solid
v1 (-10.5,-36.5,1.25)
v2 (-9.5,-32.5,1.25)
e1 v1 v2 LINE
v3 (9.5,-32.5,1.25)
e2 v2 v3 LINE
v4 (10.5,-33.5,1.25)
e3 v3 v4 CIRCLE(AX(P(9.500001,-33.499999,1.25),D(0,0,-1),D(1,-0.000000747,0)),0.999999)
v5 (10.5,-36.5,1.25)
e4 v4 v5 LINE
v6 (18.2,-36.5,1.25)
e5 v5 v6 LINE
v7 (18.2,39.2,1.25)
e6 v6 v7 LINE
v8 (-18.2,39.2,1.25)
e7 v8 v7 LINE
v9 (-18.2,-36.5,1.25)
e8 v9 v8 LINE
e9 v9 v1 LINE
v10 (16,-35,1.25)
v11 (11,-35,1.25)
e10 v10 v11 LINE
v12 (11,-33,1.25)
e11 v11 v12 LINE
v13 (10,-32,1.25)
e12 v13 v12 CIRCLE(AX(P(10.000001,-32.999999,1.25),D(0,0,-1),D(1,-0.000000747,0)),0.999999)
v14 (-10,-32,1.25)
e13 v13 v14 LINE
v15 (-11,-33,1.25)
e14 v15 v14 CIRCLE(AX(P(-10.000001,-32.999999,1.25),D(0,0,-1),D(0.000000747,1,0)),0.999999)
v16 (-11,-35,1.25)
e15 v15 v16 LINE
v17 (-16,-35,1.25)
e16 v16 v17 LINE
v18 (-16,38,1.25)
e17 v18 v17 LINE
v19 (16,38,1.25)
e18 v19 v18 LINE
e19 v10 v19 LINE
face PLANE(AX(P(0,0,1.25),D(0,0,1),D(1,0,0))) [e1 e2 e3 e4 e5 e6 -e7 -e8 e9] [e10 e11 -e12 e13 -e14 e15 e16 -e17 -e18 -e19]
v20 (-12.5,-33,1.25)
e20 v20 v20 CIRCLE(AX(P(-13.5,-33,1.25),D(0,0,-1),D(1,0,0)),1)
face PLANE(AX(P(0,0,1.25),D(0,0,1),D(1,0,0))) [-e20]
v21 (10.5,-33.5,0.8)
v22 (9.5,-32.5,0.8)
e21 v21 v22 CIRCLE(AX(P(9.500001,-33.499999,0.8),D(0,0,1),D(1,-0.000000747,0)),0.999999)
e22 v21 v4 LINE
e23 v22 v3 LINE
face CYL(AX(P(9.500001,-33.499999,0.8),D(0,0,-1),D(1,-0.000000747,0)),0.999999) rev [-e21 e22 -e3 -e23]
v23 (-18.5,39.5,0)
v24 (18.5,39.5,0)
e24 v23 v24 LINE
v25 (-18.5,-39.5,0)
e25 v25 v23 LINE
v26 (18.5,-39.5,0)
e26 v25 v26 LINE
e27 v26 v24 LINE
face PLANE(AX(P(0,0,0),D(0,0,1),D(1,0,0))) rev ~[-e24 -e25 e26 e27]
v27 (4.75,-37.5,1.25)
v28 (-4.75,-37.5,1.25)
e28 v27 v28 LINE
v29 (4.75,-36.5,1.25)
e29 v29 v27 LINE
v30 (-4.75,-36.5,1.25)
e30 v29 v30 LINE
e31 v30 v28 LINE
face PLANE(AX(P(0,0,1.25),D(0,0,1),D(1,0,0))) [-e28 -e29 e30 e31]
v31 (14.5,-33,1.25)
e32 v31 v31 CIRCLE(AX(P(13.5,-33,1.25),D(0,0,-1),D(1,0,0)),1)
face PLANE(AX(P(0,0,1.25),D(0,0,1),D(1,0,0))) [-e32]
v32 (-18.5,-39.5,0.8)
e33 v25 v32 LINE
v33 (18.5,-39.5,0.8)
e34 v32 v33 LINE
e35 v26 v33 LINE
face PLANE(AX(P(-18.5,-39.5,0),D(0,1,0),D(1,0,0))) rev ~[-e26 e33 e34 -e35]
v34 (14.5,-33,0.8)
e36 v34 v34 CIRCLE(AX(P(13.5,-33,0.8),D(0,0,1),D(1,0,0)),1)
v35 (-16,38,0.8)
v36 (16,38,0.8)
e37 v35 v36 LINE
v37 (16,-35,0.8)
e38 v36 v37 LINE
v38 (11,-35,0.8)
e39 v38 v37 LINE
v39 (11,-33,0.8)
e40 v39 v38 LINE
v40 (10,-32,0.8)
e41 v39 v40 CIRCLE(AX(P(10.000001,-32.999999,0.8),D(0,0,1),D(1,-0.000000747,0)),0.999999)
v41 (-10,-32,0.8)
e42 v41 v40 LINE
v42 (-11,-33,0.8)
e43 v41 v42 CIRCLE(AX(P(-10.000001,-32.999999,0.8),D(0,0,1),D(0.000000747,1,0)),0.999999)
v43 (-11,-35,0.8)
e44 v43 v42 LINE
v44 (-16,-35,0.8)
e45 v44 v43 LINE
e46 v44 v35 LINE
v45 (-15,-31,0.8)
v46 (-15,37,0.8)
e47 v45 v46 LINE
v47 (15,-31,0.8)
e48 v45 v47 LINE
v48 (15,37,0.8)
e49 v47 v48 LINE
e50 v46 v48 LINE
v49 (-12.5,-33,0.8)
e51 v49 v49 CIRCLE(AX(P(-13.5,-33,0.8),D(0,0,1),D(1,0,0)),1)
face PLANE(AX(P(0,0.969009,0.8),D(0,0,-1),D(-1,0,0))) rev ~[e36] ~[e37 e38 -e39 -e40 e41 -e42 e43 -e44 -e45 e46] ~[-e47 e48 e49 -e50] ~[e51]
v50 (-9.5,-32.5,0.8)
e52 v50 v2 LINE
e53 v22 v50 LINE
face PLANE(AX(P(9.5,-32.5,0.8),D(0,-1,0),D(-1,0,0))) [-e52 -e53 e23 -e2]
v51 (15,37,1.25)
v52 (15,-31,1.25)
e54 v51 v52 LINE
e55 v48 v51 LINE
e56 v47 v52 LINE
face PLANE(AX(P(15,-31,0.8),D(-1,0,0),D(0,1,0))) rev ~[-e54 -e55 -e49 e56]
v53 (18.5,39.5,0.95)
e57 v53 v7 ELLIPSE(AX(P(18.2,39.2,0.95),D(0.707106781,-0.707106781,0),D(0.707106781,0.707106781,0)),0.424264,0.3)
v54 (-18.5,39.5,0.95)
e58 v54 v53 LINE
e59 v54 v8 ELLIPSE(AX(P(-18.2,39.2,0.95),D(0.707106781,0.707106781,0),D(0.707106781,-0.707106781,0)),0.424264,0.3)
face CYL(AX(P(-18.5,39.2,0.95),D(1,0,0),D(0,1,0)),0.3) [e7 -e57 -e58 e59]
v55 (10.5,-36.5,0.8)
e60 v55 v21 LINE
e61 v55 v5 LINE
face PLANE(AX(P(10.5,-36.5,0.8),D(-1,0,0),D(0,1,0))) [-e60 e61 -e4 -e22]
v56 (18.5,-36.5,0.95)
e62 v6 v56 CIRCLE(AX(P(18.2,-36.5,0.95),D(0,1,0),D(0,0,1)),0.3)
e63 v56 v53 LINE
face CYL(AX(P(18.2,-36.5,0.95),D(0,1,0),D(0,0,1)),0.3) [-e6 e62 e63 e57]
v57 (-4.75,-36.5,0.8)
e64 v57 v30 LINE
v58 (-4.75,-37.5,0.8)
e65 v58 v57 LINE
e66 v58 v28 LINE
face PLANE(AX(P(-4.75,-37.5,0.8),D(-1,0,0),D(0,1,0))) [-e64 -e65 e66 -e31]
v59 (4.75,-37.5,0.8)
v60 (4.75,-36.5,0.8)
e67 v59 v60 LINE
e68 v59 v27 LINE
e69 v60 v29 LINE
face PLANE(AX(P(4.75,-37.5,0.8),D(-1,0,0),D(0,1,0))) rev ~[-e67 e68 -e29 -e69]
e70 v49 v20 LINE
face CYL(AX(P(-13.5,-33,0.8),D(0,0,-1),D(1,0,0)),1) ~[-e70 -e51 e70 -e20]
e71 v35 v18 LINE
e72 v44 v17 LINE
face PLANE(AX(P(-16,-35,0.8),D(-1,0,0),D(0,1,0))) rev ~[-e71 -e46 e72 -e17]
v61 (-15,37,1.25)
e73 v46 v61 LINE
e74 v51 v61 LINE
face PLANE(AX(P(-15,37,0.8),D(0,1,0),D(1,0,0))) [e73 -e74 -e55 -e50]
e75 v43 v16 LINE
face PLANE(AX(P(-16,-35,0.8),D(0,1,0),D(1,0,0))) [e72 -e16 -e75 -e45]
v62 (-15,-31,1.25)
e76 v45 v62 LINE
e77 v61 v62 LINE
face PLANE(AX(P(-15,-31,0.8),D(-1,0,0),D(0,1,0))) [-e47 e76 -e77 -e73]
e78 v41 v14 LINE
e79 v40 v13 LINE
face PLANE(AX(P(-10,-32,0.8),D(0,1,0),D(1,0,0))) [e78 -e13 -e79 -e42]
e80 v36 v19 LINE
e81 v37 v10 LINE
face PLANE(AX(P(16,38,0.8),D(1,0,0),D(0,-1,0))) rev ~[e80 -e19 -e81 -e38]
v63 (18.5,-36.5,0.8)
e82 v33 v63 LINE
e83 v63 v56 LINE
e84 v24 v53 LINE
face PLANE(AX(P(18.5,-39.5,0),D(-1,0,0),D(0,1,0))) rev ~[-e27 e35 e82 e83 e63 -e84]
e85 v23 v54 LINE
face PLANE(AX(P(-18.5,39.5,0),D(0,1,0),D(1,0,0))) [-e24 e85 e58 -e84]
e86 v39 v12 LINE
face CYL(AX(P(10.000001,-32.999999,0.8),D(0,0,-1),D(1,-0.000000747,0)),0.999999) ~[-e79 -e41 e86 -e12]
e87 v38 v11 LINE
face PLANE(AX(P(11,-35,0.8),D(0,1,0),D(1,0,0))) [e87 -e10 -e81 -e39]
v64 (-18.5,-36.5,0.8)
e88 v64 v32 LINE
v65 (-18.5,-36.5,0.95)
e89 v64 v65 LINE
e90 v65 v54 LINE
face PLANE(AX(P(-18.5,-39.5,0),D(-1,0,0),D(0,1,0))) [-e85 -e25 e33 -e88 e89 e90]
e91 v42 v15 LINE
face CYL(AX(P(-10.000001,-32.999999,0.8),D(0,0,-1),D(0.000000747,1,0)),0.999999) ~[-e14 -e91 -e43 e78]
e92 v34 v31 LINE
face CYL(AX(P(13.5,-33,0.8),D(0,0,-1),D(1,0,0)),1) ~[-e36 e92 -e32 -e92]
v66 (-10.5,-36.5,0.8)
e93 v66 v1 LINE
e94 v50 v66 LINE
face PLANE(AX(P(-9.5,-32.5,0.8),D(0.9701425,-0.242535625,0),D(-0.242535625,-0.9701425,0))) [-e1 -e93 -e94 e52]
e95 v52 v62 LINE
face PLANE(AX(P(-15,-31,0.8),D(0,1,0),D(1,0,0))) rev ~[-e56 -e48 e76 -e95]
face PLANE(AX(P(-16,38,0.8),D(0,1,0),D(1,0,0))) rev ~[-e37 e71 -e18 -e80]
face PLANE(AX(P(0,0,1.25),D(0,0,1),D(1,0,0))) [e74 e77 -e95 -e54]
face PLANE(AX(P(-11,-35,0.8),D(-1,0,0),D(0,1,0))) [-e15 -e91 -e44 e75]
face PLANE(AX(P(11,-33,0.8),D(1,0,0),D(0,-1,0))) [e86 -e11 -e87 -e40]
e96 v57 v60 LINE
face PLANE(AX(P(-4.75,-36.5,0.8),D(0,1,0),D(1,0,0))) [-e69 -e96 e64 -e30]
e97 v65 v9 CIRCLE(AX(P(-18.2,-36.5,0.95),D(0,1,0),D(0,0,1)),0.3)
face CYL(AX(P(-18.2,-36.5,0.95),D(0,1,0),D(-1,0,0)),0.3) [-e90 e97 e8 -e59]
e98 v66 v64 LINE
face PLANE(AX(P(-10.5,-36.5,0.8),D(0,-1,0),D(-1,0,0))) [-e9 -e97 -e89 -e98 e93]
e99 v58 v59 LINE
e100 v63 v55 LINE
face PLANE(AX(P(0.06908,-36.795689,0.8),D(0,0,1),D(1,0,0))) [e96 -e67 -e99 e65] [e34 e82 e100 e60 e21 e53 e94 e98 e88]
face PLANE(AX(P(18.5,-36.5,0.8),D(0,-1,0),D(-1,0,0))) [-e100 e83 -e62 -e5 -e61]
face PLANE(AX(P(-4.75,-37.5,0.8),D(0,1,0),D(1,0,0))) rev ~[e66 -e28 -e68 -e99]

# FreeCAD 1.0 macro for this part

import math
import FreeCAD as App
import Part
import Sketcher
Q = App.Units.Quantity


def edges_at(feature, points):
    """Names of the edges that pass closest to the given points."""
    edges = feature.Shape.Edges
    near = lambda p: min(range(len(edges)), key=lambda i: edges[i].distToShape(Part.Vertex(*p))[0])
    return sorted({f"Edge{near(p) + 1}" for p in points})


def add_polygon(sketch, points):
    """Adds a closed chain of lines whose ends are joined by coincident constraints."""
    first, n = sketch.GeometryCount, len(points)
    for a, b in zip(points, points[1:] + points[:1]):
        sketch.addGeometry(Part.LineSegment(App.Vector(*a, 0), App.Vector(*b, 0)), False)
    for i in range(n):
        sketch.addConstraint(Sketcher.Constraint("Coincident", first + i, 2, first + (i + 1) % n, 1))

doc = App.newDocument("Part")
params = doc.addObject("Spreadsheet::Sheet", "Params")
for row, (alias, value) in enumerate([
    ("sketch1_width", "37 mm"),
    ("sketch1_height", "79 mm"),
    ("pad1_length", "1.25 mm"),
    ("sketch2_diameter", "2 mm"),
    ("sketch2_width", "32 mm"),
    ("sketch2_width2", "5 mm"),
    ("sketch2_width3", "30 mm"),
    ("sketch2_height", "73 mm"),
    ("pocket1_length", "1 mm"),
    ("sketch3_radius", "0.999999 mm"),
    ("sketch3_width", "37 mm"),
    ("sketch3_width2", "8 mm"),
    ("sketch3_width3", "19 mm"),
    ("sketch3_height", "3 mm"),
    ("pocket2_length", "1 mm"),
    ("fillet_radius", "0.3 mm"),
], start=1):
    params.set(f"A{row}", alias)
    params.set(f"B{row}", "=" + value)
    params.setAlias(f"B{row}", alias)

body = doc.addObject("PartDesign::Body", "Body")

# Sketch on XY plane
sketch1 = doc.addObject("Sketcher::SketchObject", "Sketch")
body.addObject(sketch1)
sketch1.AttachmentSupport = (doc.XY_Plane, [""])
sketch1.MapMode = "FlatFace"
add_polygon(sketch1, [(-18, 40), (-18, -40), (18, -40), (18, 40)])  # lines 0-3
sketch1.addConstraint([
    Sketcher.Constraint("Vertical", 0),
    Sketcher.Constraint("Horizontal", 1),
    Sketcher.Constraint("Vertical", 2),
    Sketcher.Constraint("Horizontal", 3),
    Sketcher.Constraint("Symmetric", 0, 2, 2, 2, -1, 1),
    Sketcher.Constraint("DistanceX", 1, 1, 1, 2, Q("37 mm")),
    Sketcher.Constraint("DistanceY", 0, 2, 0, 1, Q("79 mm")),
])
sketch1.setExpression("Constraints[9]", "Params.sketch1_width")
sketch1.setExpression("Constraints[10]", "Params.sketch1_height")
pad1 = doc.addObject("PartDesign::Pad", "Pad")
body.addObject(pad1)
pad1.Profile = sketch1
pad1.setExpression("Length", "Params.pad1_length")

# Sketch on XY plane
sketch2 = doc.addObject("Sketcher::SketchObject", "Sketch001")
body.addObject(sketch2)
sketch2.AttachmentSupport = (doc.XY_Plane, [""])
sketch2.MapMode = "FlatFace"
sketch2.AttachmentOffset = App.Placement(App.Vector(0, 0, 0.8), App.Rotation())
sketch2.addGeometry(Part.LineSegment(App.Vector(16, 38, 0), App.Vector(-16, 38, 0)), False)  # 0
sketch2.addGeometry(Part.LineSegment(App.Vector(-16, 38, 0), App.Vector(-16, -35, 0)), False)  # 1
sketch2.addGeometry(Part.LineSegment(App.Vector(-16, -35, 0), App.Vector(-11, -35, 0)), False)  # 2
sketch2.addGeometry(Part.LineSegment(App.Vector(-11, -35, 0), App.Vector(-11, -33, 0)), False)  # 3
sketch2.addGeometry(Part.ArcOfCircle(Part.Circle(App.Vector(-10, -33, 0), App.Vector(0, 0, 1), 1), math.radians(90), math.radians(180)), False)  # 4
sketch2.addGeometry(Part.LineSegment(App.Vector(-10, -32, 0), App.Vector(10, -32, 0)), False)  # 5
sketch2.addGeometry(Part.ArcOfCircle(Part.Circle(App.Vector(10, -33, 0), App.Vector(0, 0, 1), 1), math.radians(0), math.radians(90)), False)  # 6
sketch2.addGeometry(Part.LineSegment(App.Vector(11, -33, 0), App.Vector(11, -35, 0)), False)  # 7
sketch2.addGeometry(Part.LineSegment(App.Vector(11, -35, 0), App.Vector(16, -35, 0)), False)  # 8
sketch2.addGeometry(Part.LineSegment(App.Vector(16, -35, 0), App.Vector(16, 38, 0)), False)  # 9
sketch2.addGeometry(Part.Circle(App.Vector(13.5, -33, 0), App.Vector(0, 0, 1), 1), False)  # 10
sketch2.addGeometry(Part.Circle(App.Vector(-13.5, -33, 0), App.Vector(0, 0, 1), 1), False)  # 11
add_polygon(sketch2, [(-15, -31), (-15, 37), (15, 37), (15, -31)])  # lines 12-15
sketch2.addConstraint([
    Sketcher.Constraint("Coincident", 0, 2, 1, 1),
    Sketcher.Constraint("Coincident", 1, 2, 2, 1),
    Sketcher.Constraint("Coincident", 2, 2, 3, 1),
    Sketcher.Constraint("Tangent", 3, 2, 4, 2),
    Sketcher.Constraint("Tangent", 4, 1, 5, 1),
    Sketcher.Constraint("Tangent", 5, 2, 6, 2),
    Sketcher.Constraint("Tangent", 6, 1, 7, 1),
    Sketcher.Constraint("Coincident", 7, 2, 8, 1),
    Sketcher.Constraint("Coincident", 8, 2, 9, 1),
    Sketcher.Constraint("Coincident", 9, 2, 0, 1),
    Sketcher.Constraint("Horizontal", 0),
    Sketcher.Constraint("Vertical", 1),
    Sketcher.Constraint("Horizontal", 2),
    Sketcher.Constraint("Vertical", 3),
    Sketcher.Constraint("Horizontal", 5),
    Sketcher.Constraint("Vertical", 7),
    Sketcher.Constraint("Horizontal", 8),
    Sketcher.Constraint("Vertical", 9),
    Sketcher.Constraint("Vertical", 12),
    Sketcher.Constraint("Horizontal", 13),
    Sketcher.Constraint("Vertical", 14),
    Sketcher.Constraint("Horizontal", 15),
    Sketcher.Constraint("Equal", 4, 6),
    Sketcher.Constraint("Equal", 6, 10),
    Sketcher.Constraint("Equal", 10, 11),
    Sketcher.Constraint("Symmetric", 10, 3, 11, 3, -2),
    Sketcher.Constraint("Symmetric", 2, 2, 7, 2, -2),
    Sketcher.Constraint("Horizontal", 6, 3, 10, 3),
    Sketcher.Constraint("Equal", 2, 8),
    Sketcher.Constraint("Diameter", 10, Q("2 mm")),
    Sketcher.Constraint("DistanceX", 0, 2, 0, 1, Q("32 mm")),
    Sketcher.Constraint("DistanceX", 2, 1, 2, 2, Q("5 mm")),
    Sketcher.Constraint("DistanceX", 13, 1, 13, 2, Q("30 mm")),
    Sketcher.Constraint("DistanceY", 1, 2, 1, 1, Q("73 mm")),
    Sketcher.Constraint("DistanceY", 3, 1, 3, 2, Q("2 mm")),
    Sketcher.Constraint("DistanceY", 12, 1, 12, 2, Q("68 mm")),
    Sketcher.Constraint("DistanceY", 4, 3, -1, 1, Q("32.999999 mm")),
    Sketcher.Constraint("DistanceX", 12, 2, -1, 1, Q("15 mm")),
    Sketcher.Constraint("DistanceY", -1, 1, 12, 2, Q("37 mm")),
    Sketcher.Constraint("DistanceX", 11, 3, 10, 3, Q("27 mm")),
])
sketch2.setExpression("Constraints[33]", "Params.sketch2_diameter")
sketch2.setExpression("Constraints[34]", "Params.sketch2_width")
sketch2.setExpression("Constraints[35]", "Params.sketch2_width2")
sketch2.setExpression("Constraints[36]", "Params.sketch2_width3")
sketch2.setExpression("Constraints[37]", "Params.sketch2_height")
pocket1 = doc.addObject("PartDesign::Pocket", "Pocket")
body.addObject(pocket1)
pocket1.Profile = sketch2
pocket1.setExpression("Length", "Params.pocket1_length")
pocket1.Reversed = True

# Sketch on XY plane
sketch3 = doc.addObject("Sketcher::SketchObject", "Sketch002")
body.addObject(sketch3)
sketch3.AttachmentSupport = (doc.XY_Plane, [""])
sketch3.MapMode = "FlatFace"
sketch3.AttachmentOffset = App.Placement(App.Vector(0, 0, 0.8), App.Rotation())
sketch3.addGeometry(Part.LineSegment(App.Vector(-18.5, -39.5, 0), App.Vector(18.5, -39.5, 0)), False)  # 0
sketch3.addGeometry(Part.LineSegment(App.Vector(18.5, -39.5, 0), App.Vector(18.5, -36.5, 0)), False)  # 1
sketch3.addGeometry(Part.LineSegment(App.Vector(18.5, -36.5, 0), App.Vector(10.5, -36.5, 0)), False)  # 2
sketch3.addGeometry(Part.LineSegment(App.Vector(10.5, -36.5, 0), App.Vector(10.5, -33.5, 0)), False)  # 3
sketch3.addGeometry(Part.ArcOfCircle(Part.Circle(App.Vector(9.5, -33.5, 0), App.Vector(0, 0, 1), 1), math.radians(0), math.radians(90)), False)  # 4
sketch3.addGeometry(Part.LineSegment(App.Vector(9.5, -32.5, 0), App.Vector(-9.5, -32.5, 0)), False)  # 5
sketch3.addGeometry(Part.LineSegment(App.Vector(-9.5, -32.5, 0), App.Vector(-10.5, -36.5, 0)), False)  # 6
sketch3.addGeometry(Part.LineSegment(App.Vector(-10.5, -36.5, 0), App.Vector(-18.5, -36.5, 0)), False)  # 7
sketch3.addGeometry(Part.LineSegment(App.Vector(-18.5, -36.5, 0), App.Vector(-18.5, -39.5, 0)), False)  # 8
add_polygon(sketch3, [(4.8, -37.5), (-4.8, -37.5), (-4.8, -36.5), (4.8, -36.5)])  # lines 9-12
sketch3.addConstraint([
    Sketcher.Constraint("Coincident", 0, 2, 1, 1),
    Sketcher.Constraint("Coincident", 1, 2, 2, 1),
    Sketcher.Constraint("Coincident", 2, 2, 3, 1),
    Sketcher.Constraint("Tangent", 3, 2, 4, 1),
    Sketcher.Constraint("Tangent", 4, 2, 5, 1),
    Sketcher.Constraint("Coincident", 5, 2, 6, 1),
    Sketcher.Constraint("Coincident", 6, 2, 7, 1),
    Sketcher.Constraint("Coincident", 7, 2, 8, 1),
    Sketcher.Constraint("Coincident", 8, 2, 0, 1),
    Sketcher.Constraint("Horizontal", 0),
    Sketcher.Constraint("Vertical", 1),
    Sketcher.Constraint("Horizontal", 2),
    Sketcher.Constraint("Vertical", 3),
    Sketcher.Constraint("Horizontal", 5),
    Sketcher.Constraint("Horizontal", 7),
    Sketcher.Constraint("Vertical", 8),
    Sketcher.Constraint("Horizontal", 9),
    Sketcher.Constraint("Vertical", 10),
    Sketcher.Constraint("Horizontal", 11),
    Sketcher.Constraint("Vertical", 12),
    Sketcher.Constraint("Symmetric", 2, 2, 6, 2, -2),
    Sketcher.Constraint("Horizontal", 7, 2, 10, 2),
    Sketcher.Constraint("Equal", 2, 7),
    Sketcher.Constraint("Equal", 1, 3),
    Sketcher.Constraint("Radius", 4, Q("0.999999 mm")),
    Sketcher.Constraint("DistanceX", 0, 1, 0, 2, Q("37 mm")),
    Sketcher.Constraint("DistanceX", 2, 2, 2, 1, Q("8 mm")),
    Sketcher.Constraint("DistanceX", 5, 2, 5, 1, Q("19 mm")),
    Sketcher.Constraint("DistanceY", 1, 1, 1, 2, Q("3 mm")),
    Sketcher.Constraint("DistanceY", 10, 1, 10, 2, Q("1 mm")),
    Sketcher.Constraint("DistanceX", 9, 2, 9, 1, Q("9.5 mm")),
    Sketcher.Constraint("DistanceY", 4, 3, -1, 1, Q("33.499999 mm")),
    Sketcher.Constraint("DistanceX", 9, 2, -1, 1, Q("4.75 mm")),
])
sketch3.setExpression("Constraints[28]", "Params.sketch3_radius")
sketch3.setExpression("Constraints[29]", "Params.sketch3_width")
sketch3.setExpression("Constraints[30]", "Params.sketch3_width2")
sketch3.setExpression("Constraints[31]", "Params.sketch3_width3")
sketch3.setExpression("Constraints[32]", "Params.sketch3_height")
pocket2 = doc.addObject("PartDesign::Pocket", "Pocket001")
body.addObject(pocket2)
pocket2.Profile = sketch3
pocket2.setExpression("Length", "Params.pocket2_length")
pocket2.Reversed = True
doc.recompute()

fillet = doc.addObject("PartDesign::Fillet", "Fillet")
body.addObject(fillet)
fillet.Base = (pocket2, edges_at(pocket2, [(0, 39.5, 1.25), (-18.5, 1.5, 1.25), (18.5, 1.5, 1.25)]))
fillet.setExpression("Radius", "Params.fillet_radius")

doc.recompute()
